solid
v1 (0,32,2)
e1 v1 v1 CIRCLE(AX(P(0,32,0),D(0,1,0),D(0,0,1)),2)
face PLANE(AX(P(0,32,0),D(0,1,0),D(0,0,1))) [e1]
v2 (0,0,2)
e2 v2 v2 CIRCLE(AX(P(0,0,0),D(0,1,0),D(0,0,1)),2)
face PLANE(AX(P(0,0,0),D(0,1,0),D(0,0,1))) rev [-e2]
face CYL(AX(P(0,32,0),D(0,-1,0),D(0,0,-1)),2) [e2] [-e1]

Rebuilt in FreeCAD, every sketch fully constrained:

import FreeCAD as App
import Part
import Sketcher
from FreeCAD import Vector
Q = App.Units.Quantity

doc = App.newDocument("Part")
params = doc.addObject("Spreadsheet::Sheet", "Params")
for row, (alias, value) in enumerate([
    ("sketch1_diameter", "4 mm"),
    ("pad1_length", "32 mm"),
], start=1):
    params.set(f"A{row}", alias)
    params.set(f"B{row}", "=" + value)
    params.setAlias(f"B{row}", alias)

body = doc.addObject("PartDesign::Body", "Body")

# Sketch on XZ plane
sketch1 = body.newObject("Sketcher::SketchObject", "Sketch")
sketch1.AttachmentSupport = (doc.getObject("XZ_Plane"), [""])
sketch1.MapMode = "FlatFace"
sketch1.addGeometry(Part.Circle(Vector(0, 0, 0), Vector(0, 0, 1), 2), False)
sketch1.addConstraint([
    Sketcher.Constraint("Coincident", 0, 3, -1, 1),
    Sketcher.Constraint("Diameter", 0, Q("4 mm")),
])
sketch1.setExpression("Constraints[1]", "Params.sketch1_diameter")
pad1 = body.newObject("PartDesign::Pad", "Pad")
pad1.Profile = sketch1
pad1.setExpression("Length", "Params.pad1_length")
pad1.Reversed = True

doc.recompute()
